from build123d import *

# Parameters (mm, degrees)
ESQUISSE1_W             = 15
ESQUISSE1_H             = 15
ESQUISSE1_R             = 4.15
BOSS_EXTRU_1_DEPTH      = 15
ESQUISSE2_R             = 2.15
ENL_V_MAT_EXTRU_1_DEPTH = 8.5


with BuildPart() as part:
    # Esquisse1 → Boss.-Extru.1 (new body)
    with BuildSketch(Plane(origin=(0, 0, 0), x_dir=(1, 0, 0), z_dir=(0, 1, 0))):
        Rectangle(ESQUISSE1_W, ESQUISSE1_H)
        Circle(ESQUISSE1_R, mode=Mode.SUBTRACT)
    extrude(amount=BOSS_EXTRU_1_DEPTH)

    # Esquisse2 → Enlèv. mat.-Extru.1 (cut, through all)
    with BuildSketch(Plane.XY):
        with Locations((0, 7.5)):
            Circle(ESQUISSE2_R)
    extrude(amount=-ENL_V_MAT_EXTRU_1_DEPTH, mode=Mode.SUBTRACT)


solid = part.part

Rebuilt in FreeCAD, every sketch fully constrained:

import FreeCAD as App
import Part
import Sketcher

V = App.Vector
Q = App.Units.Quantity

doc = App.newDocument("Part")
params = doc.addObject("Spreadsheet::Sheet", "Params")
for row, (alias, value) in enumerate([
    ("sketch1_diameter", "8.3 mm"),
    ("sketch1_width", "15 mm"),
    ("pad1_length", "15 mm"),
    ("sketch2_diameter", "4.3 mm"),
], start=1):
    params.set(f"A{row}", alias)
    params.set(f"B{row}", "=" + value)
    params.setAlias(f"B{row}", alias)

body = doc.addObject("PartDesign::Body", "Body")

# Sketch on XZ plane
sketch1 = doc.addObject("Sketcher::SketchObject", "Sketch")
body.addObject(sketch1)
sketch1.AttachmentSupport = (doc.XZ_Plane, [""])
sketch1.MapMode = "FlatFace"
sketch1.addGeometry(Part.LineSegment(V(-7.5, -7.5, 0), V(-7.5, 7.5, 0)), False)
sketch1.addGeometry(Part.LineSegment(V(-7.5, 7.5, 0), V(7.5, 7.5, 0)), False)
sketch1.addGeometry(Part.LineSegment(V(7.5, 7.5, 0), V(7.5, -7.5, 0)), False)
sketch1.addGeometry(Part.LineSegment(V(7.5, -7.5, 0), V(-7.5, -7.5, 0)), False)
sketch1.addGeometry(Part.Circle(V(0, 0, 0), V(0, 0, 1), 4.2), False)
sketch1.addConstraint(Sketcher.Constraint("Coincident", 0, 2, 1, 1))
sketch1.addConstraint(Sketcher.Constraint("Coincident", 1, 2, 2, 1))
sketch1.addConstraint(Sketcher.Constraint("Coincident", 2, 2, 3, 1))
sketch1.addConstraint(Sketcher.Constraint("Coincident", 3, 2, 0, 1))
sketch1.addConstraint(Sketcher.Constraint("Vertical", 0))
sketch1.addConstraint(Sketcher.Constraint("Horizontal", 1))
sketch1.addConstraint(Sketcher.Constraint("Vertical", 2))
sketch1.addConstraint(Sketcher.Constraint("Horizontal", 3))
sketch1.addConstraint(Sketcher.Constraint("Coincident", 4, 3, -1, 1))
sketch1.addConstraint(Sketcher.Constraint("Symmetric", 0, 2, 2, 2, -1, 1))
sketch1.addConstraint(Sketcher.Constraint("Equal", 3, 0))
sketch1.addConstraint(Sketcher.Constraint("Diameter", 4, Q("8.3 mm")))
sketch1.addConstraint(Sketcher.Constraint("DistanceX", 1, 1, 1, 2, Q("15 mm")))
sketch1.setExpression("Constraints[11]", "Params.sketch1_diameter")
sketch1.setExpression("Constraints[12]", "Params.sketch1_width")
pad1 = doc.addObject("PartDesign::Pad", "Pad")
body.addObject(pad1)
pad1.Profile = sketch1
pad1.setExpression("Length", "Params.pad1_length")
pad1.Reversed = True

# Sketch on XY plane
sketch2 = doc.addObject("Sketcher::SketchObject", "Sketch001")
body.addObject(sketch2)
sketch2.AttachmentSupport = (doc.XY_Plane, [""])
sketch2.MapMode = "FlatFace"
sketch2.addGeometry(Part.Circle(V(0, 7.5, 0), V(0, 0, 1), 2.1), False)
sketch2.addConstraint(Sketcher.Constraint("PointOnObject", 0, 3, -2))
sketch2.addConstraint(Sketcher.Constraint("Diameter", 0, Q("4.3 mm")))
sketch2.addConstraint(Sketcher.Constraint("DistanceY", -1, 1, 0, 3, Q("7.5 mm")))
sketch2.setExpression("Constraints[1]", "Params.sketch2_diameter")
pocket1 = doc.addObject("PartDesign::Pocket", "Pocket")
body.addObject(pocket1)
pocket1.Profile = sketch2
pocket1.Type = "ThroughAll"

doc.recompute()
